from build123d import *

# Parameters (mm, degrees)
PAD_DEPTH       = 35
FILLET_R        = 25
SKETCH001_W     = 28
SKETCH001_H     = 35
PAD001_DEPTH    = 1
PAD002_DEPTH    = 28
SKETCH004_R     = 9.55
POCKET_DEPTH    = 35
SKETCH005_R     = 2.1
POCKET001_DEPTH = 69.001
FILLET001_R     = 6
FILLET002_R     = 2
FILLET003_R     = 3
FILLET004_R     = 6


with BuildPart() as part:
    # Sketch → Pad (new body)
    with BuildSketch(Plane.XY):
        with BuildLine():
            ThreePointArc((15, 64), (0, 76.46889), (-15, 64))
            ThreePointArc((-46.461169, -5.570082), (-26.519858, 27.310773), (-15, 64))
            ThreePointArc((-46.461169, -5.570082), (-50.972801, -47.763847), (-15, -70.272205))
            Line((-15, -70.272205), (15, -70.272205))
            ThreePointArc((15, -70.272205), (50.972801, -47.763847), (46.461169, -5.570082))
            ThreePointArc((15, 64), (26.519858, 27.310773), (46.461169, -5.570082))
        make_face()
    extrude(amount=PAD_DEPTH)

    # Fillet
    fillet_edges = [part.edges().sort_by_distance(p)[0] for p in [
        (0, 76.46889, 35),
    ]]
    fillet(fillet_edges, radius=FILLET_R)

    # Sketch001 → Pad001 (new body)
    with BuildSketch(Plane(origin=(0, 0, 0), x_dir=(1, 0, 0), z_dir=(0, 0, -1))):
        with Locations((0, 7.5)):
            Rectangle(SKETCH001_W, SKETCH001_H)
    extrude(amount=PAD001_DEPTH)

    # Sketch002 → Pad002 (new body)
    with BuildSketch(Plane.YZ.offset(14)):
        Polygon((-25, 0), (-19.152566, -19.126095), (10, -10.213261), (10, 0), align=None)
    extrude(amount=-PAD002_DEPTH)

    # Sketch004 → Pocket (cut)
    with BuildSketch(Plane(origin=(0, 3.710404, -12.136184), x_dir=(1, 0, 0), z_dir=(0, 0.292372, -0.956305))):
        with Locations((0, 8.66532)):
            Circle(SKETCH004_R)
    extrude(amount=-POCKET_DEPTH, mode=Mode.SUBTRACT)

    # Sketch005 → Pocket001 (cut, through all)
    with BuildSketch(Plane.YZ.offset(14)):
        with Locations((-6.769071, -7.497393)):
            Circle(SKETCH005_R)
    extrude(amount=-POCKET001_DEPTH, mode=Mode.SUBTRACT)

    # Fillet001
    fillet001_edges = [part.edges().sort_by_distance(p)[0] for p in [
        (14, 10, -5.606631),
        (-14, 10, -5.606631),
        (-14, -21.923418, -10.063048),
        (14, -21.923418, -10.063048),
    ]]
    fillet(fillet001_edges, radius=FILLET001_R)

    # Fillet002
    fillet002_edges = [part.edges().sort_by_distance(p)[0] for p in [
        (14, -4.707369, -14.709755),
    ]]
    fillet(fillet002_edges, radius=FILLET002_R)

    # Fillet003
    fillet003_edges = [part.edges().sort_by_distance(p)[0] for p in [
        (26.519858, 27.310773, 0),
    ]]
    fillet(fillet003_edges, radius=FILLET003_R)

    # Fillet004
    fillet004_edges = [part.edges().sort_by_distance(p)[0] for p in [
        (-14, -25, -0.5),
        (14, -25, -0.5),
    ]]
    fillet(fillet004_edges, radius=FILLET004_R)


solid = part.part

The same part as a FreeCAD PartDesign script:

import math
import FreeCAD as App
import Part
import Sketcher
from FreeCAD import Vector
Q = App.Units.Quantity


def edges_at(feature, points):
    """Names of the edges that pass closest to the given points."""
    edges = feature.Shape.Edges
    near = lambda p: min(range(len(edges)), key=lambda i: edges[i].distToShape(Part.Vertex(*p))[0])
    return sorted({f"Edge{near(p) + 1}" for p in points})


def add_polygon(sketch, points):
    """Adds a closed chain of lines whose ends are joined by coincident constraints."""
    first, n = sketch.GeometryCount, len(points)
    for a, b in zip(points, points[1:] + points[:1]):
        sketch.addGeometry(Part.LineSegment(App.Vector(*a, 0), App.Vector(*b, 0)), False)
    for i in range(n):
        sketch.addConstraint(Sketcher.Constraint("Coincident", first + i, 2, first + (i + 1) % n, 1))

doc = App.newDocument("Part")
params = doc.addObject("Spreadsheet::Sheet", "Params")
for row, (alias, value) in enumerate([
    ("sketch1_radius", "40.000001 mm"),
    ("sketch1_width", "30 mm"),
    ("pad1_length", "35 mm"),
    ("fillet_radius", "25 mm"),
    ("sketch2_width", "28 mm"),
    ("sketch2_height", "35 mm"),
    ("pad2_length", "1 mm"),
    ("sketch3_width", "35 mm"),
    ("sketch3_length", "20 mm"),
    ("pad3_length", "28 mm"),
    ("sketch4_diameter", "19.1 mm"),
    ("pocket1_length", "35 mm"),
    ("sketch5_diameter", "4.2 mm"),
    ("fillet2_radius", "6 mm"),
    ("fillet3_radius", "2 mm"),
    ("fillet4_radius", "3 mm"),
    ("fillet5_radius", "6 mm"),
], start=1):
    params.set(f"A{row}", alias)
    params.set(f"B{row}", "=" + value)
    params.setAlias(f"B{row}", alias)

body = doc.addObject("PartDesign::Body", "Body")

# Sketch on XY plane
sketch1 = body.newObject("Sketcher::SketchObject", "Sketch")
sketch1.AttachmentSupport = (doc.getObject("XY_Plane"), [""])
sketch1.MapMode = "FlatFace"
sketch1.addGeometry([
    Part.ArcOfCircle(Part.Circle(Vector(0, 61, 0), Vector(0, 0, 1), 15), math.radians(11), math.radians(169)),  # 0
    Part.ArcOfCircle(Part.Circle(Vector(-172, 93, 0), Vector(0, 0, 1), 160), math.radians(-38), math.radians(-11)),  # 1
    Part.ArcOfCircle(Part.Circle(Vector(-15, -30, 0), Vector(0, 0, 1), 40), math.radians(142), math.radians(270)),  # 2
    Part.LineSegment(Vector(-15, -70, 0), Vector(15, -70, 0)),  # 3
    Part.ArcOfCircle(Part.Circle(Vector(15, -30, 0), Vector(0, 0, 1), 40), math.radians(-90), math.radians(38)),  # 4
    Part.ArcOfCircle(Part.Circle(Vector(172, 93, 0), Vector(0, 0, 1), 160), math.radians(-169), math.radians(-142)),  # 5
], False)
sketch1.addConstraint([
    Sketcher.Constraint("Coincident", 0, 2, 1, 2),
    Sketcher.Constraint("Tangent", 1, 1, 2, 1),
    Sketcher.Constraint("Tangent", 2, 2, 3, 1),
    Sketcher.Constraint("Tangent", 3, 2, 4, 1),
    Sketcher.Constraint("Tangent", 4, 2, 5, 2),
    Sketcher.Constraint("Coincident", 5, 1, 0, 1),
    Sketcher.Constraint("Horizontal", 3),
    Sketcher.Constraint("Equal", 2, 4),
    Sketcher.Constraint("Equal", 1, 5),
    Sketcher.Constraint("Symmetric", 1, 3, 5, 3, -2),
    Sketcher.Constraint("Horizontal", 0, 2, 5, 1),
    Sketcher.Constraint("Vertical", 2, 3, 0, 2),
    Sketcher.Constraint("Radius", 2, Q("40.000001 mm")),
    Sketcher.Constraint("DistanceX", 3, 1, 3, 2, Q("30 mm")),
    Sketcher.Constraint("DistanceY", -1, 1, 0, 2, Q("64 mm")),
    Sketcher.Constraint("Radius", 0, Q("15.2569 mm")),
    Sketcher.Constraint("Radius", 1, Q("159.999991 mm")),
    Sketcher.Constraint("DistanceX", 1, 3, -1, 1, Q("172.305781 mm")),
])
sketch1.setExpression("Constraints[12]", "Params.sketch1_radius")
sketch1.setExpression("Constraints[13]", "Params.sketch1_width")
pad1 = body.newObject("PartDesign::Pad", "Pad")
pad1.Profile = sketch1
pad1.setExpression("Length", "Params.pad1_length")
doc.recompute()

fillet = body.newObject("PartDesign::Fillet", "Fillet")
fillet.Base = (pad1, edges_at(pad1, [(0, 76.469, 35)]))
fillet.setExpression("Radius", "Params.fillet_radius")

# Sketch on XY plane
sketch2 = body.newObject("Sketcher::SketchObject", "Sketch001")
sketch2.AttachmentSupport = (doc.getObject("XY_Plane"), [""])
sketch2.MapMode = "FlatFace"
add_polygon(sketch2, [(-14, -25), (-14, 10), (14, 10), (14, -25)])  # lines 0-3
sketch2.addConstraint([
    Sketcher.Constraint("Vertical", 0),
    Sketcher.Constraint("Horizontal", 1),
    Sketcher.Constraint("Vertical", 2),
    Sketcher.Constraint("Horizontal", 3),
    Sketcher.Constraint("DistanceX", 1, 1, 1, 2, Q("28 mm")),
    Sketcher.Constraint("DistanceY", 0, 1, 0, 2, Q("35 mm")),
    Sketcher.Constraint("DistanceX", 0, 2, -1, 1, Q("14 mm")),
    Sketcher.Constraint("DistanceY", -1, 1, 0, 2, Q("10 mm")),
])
sketch2.setExpression("Constraints[8]", "Params.sketch2_width")
sketch2.setExpression("Constraints[9]", "Params.sketch2_height")
pad2 = body.newObject("PartDesign::Pad", "Pad001")
pad2.Profile = sketch2
pad2.setExpression("Length", "Params.pad2_length")
pad2.Reversed = True

# Sketch on YZ plane
sketch3 = body.newObject("Sketcher::SketchObject", "Sketch002")
sketch3.AttachmentSupport = (doc.getObject("YZ_Plane"), [""])
sketch3.MapMode = "FlatFace"
sketch3.AttachmentOffset = App.Placement(Vector(0, 0, 14), App.Rotation())
add_polygon(sketch3, [(-25, 0), (-19, -19), (10, -10), (10, 0)])  # lines 0-3
sketch3.addConstraint([
    Sketcher.Constraint("Vertical", 2),
    Sketcher.Constraint("Horizontal", 3),
    Sketcher.Constraint("PointOnObject", 2, 2, -1),
    Sketcher.Constraint("Perpendicular", 0, 1),
    Sketcher.Constraint("DistanceX", 3, 2, 3, 1, Q("35 mm")),
    Sketcher.Constraint("Angle", 0, Q("-73 deg")),
    Sketcher.Constraint("Distance", 0, Q("20 mm")),
    Sketcher.Constraint("DistanceX", -1, 1, 1, 2, Q("10 mm")),
])
sketch3.setExpression("Constraints[8]", "Params.sketch3_width")
sketch3.setExpression("Constraints[10]", "Params.sketch3_length")
pad3 = body.newObject("PartDesign::Pad", "Pad002")
pad3.Profile = sketch3
pad3.setExpression("Length", "Params.pad3_length")
pad3.Reversed = True

# Sketch on an angled plane
sketch4 = body.newObject("Sketcher::SketchObject", "Sketch003")
sketch4.Placement = App.Placement(Vector(0, 3.710404, -12.136184), App.Rotation(Vector(1, 0, 0), Vector(0, -0.956304694, -0.292371907), Vector(0, 0.292371907, -0.956304694), "ZXY"))
sketch4.addGeometry(Part.Circle(Vector(0, 9, 0), Vector(0, 0, 1), 10), False)
sketch4.addConstraint([
    Sketcher.Constraint("PointOnObject", 0, 3, -2),
    Sketcher.Constraint("Diameter", 0, Q("19.1 mm")),
    Sketcher.Constraint("DistanceY", -1, 1, 0, 3, Q("8.66532 mm")),
])
sketch4.setExpression("Constraints[1]", "Params.sketch4_diameter")
pocket1 = body.newObject("PartDesign::Pocket", "Pocket")
pocket1.Profile = sketch4
pocket1.setExpression("Length", "Params.pocket1_length")

# Sketch on YZ plane
sketch5 = body.newObject("Sketcher::SketchObject", "Sketch004")
sketch5.AttachmentSupport = (doc.getObject("YZ_Plane"), [""])
sketch5.MapMode = "FlatFace"
sketch5.AttachmentOffset = App.Placement(Vector(0, 0, 14), App.Rotation())
sketch5.addGeometry(Part.Circle(Vector(-6.8, -7.5, 0), Vector(0, 0, 1), 2.1), False)
sketch5.addConstraint([
    Sketcher.Constraint("Diameter", 0, Q("4.2 mm")),
    Sketcher.Constraint("DistanceX", 0, 3, -1, 1, Q("6.769071 mm")),
    Sketcher.Constraint("DistanceY", 0, 3, -1, 1, Q("7.497393 mm")),
])
sketch5.setExpression("Constraints[0]", "Params.sketch5_diameter")
pocket2 = body.newObject("PartDesign::Pocket", "Pocket001")
pocket2.Profile = sketch5
pocket2.Type = "ThroughAll"
doc.recompute()

fillet2 = body.newObject("PartDesign::Fillet", "Fillet001")
fillet2.Base = (pocket2, edges_at(pocket2, [
    (14, 10, -5.107),
    (-14, 10, -5.107),
    (-14, -21.923, -10.063),
    (14, -21.923, -10.063),
]))
fillet2.setExpression("Radius", "Params.fillet2_radius")
doc.recompute()

fillet3 = body.newObject("PartDesign::Fillet", "Fillet002")
fillet3.Base = (fillet2, edges_at(fillet2, [(14, -4.707, -14.71)]))
fillet3.setExpression("Radius", "Params.fillet3_radius")
doc.recompute()

fillet4 = body.newObject("PartDesign::Fillet", "Fillet003")
fillet4.Base = (fillet3, edges_at(fillet3, [(26.52, 27.311, 0)]))
fillet4.setExpression("Radius", "Params.fillet4_radius")
doc.recompute()

fillet5 = body.newObject("PartDesign::Fillet", "Fillet004")
fillet5.Base = (fillet4, edges_at(fillet4, [(-14, -25, -0.5), (14, -25, -0.5)]))
fillet5.setExpression("Radius", "Params.fillet5_radius")

doc.recompute()
